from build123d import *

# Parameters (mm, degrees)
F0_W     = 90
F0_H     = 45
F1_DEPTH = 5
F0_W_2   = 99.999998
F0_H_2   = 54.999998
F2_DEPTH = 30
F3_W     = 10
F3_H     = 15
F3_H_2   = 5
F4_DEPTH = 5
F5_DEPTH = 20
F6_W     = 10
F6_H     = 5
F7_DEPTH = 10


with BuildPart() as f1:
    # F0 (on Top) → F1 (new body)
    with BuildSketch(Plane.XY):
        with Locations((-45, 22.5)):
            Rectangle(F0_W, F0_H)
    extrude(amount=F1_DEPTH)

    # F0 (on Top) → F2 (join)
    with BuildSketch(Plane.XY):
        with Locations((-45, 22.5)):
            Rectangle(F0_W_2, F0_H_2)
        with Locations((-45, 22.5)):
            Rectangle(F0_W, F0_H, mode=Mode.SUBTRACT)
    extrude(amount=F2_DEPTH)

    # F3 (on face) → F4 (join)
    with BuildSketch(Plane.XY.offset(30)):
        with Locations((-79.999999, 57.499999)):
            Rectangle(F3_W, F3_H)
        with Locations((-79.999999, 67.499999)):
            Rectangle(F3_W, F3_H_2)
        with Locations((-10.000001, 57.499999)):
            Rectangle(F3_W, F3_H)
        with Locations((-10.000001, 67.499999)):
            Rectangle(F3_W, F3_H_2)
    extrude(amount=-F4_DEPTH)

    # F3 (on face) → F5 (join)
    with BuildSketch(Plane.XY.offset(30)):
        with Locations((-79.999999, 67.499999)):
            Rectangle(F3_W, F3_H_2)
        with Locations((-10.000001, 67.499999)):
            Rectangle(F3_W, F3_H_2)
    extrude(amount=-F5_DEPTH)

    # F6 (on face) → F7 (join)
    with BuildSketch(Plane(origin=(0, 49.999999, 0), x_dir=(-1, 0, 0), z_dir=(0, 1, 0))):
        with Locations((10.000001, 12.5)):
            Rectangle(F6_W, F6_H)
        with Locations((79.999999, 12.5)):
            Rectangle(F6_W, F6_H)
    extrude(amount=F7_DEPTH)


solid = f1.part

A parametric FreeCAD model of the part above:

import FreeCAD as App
import Part
import Sketcher

V = App.Vector
Q = App.Units.Quantity

doc = App.newDocument("Part")
body = doc.addObject("PartDesign::Body", "Body")

# Sketch on XY plane
sketch1 = body.newObject("Sketcher::SketchObject", "Sketch")
sketch1.AttachmentSupport = (doc.getObject("XY_Plane"), [""])
sketch1.MapMode = "FlatFace"
sketch1.addGeometry([
    Part.LineSegment(V(-90, 45, 0), V(-90, 0, 0)),
    Part.LineSegment(V(-90, 0, 0), V(0, 0, 0)),
    Part.LineSegment(V(0, 0, 0), V(0, 45, 0)),
    Part.LineSegment(V(0, 45, 0), V(-90, 45, 0)),
], False)
sketch1.addConstraint([
    Sketcher.Constraint("Coincident", 0, 2, 1, 1),
    Sketcher.Constraint("Coincident", 1, 2, 2, 1),
    Sketcher.Constraint("Coincident", 2, 2, 3, 1),
    Sketcher.Constraint("Coincident", 3, 2, 0, 1),
    Sketcher.Constraint("Vertical", 0),
    Sketcher.Constraint("Horizontal", 1),
    Sketcher.Constraint("Vertical", 2),
    Sketcher.Constraint("Horizontal", 3),
    Sketcher.Constraint("Coincident", 1, 2, -1, 1),
    Sketcher.Constraint("DistanceX", 1, 1, 1, 2, Q("90 mm")),
    Sketcher.Constraint("DistanceY", 0, 2, 0, 1, Q("45 mm")),
])
pad1 = body.newObject("PartDesign::Pad", "Pad")
pad1.Profile = sketch1
pad1.Length = 5

# Sketch on XY plane
sketch2 = body.newObject("Sketcher::SketchObject", "Sketch001")
sketch2.AttachmentSupport = (doc.getObject("XY_Plane"), [""])
sketch2.MapMode = "FlatFace"
sketch2.addGeometry([
    Part.LineSegment(V(-94.999999, 49.999999, 0), V(-94.999999, -4.999999, 0)),  # 0
    Part.LineSegment(V(-94.999999, -4.999999, 0), V(4.999999, -4.999999, 0)),  # 1
    Part.LineSegment(V(4.999999, -4.999999, 0), V(4.999999, 49.999999, 0)),  # 2
    Part.LineSegment(V(4.999999, 49.999999, 0), V(-94.999999, 49.999999, 0)),  # 3
    Part.LineSegment(V(0, 0, 0), V(-90, 0, 0)),  # 4
    Part.LineSegment(V(-90, 0, 0), V(-90, 45, 0)),  # 5
    Part.LineSegment(V(-90, 45, 0), V(0, 45, 0)),  # 6
    Part.LineSegment(V(0, 45, 0), V(0, 0, 0)),  # 7
], False)
sketch2.addConstraint([
    Sketcher.Constraint("Coincident", 0, 2, 1, 1),
    Sketcher.Constraint("Coincident", 1, 2, 2, 1),
    Sketcher.Constraint("Coincident", 2, 2, 3, 1),
    Sketcher.Constraint("Coincident", 3, 2, 0, 1),
    Sketcher.Constraint("Coincident", 4, 2, 5, 1),
    Sketcher.Constraint("Coincident", 5, 2, 6, 1),
    Sketcher.Constraint("Coincident", 6, 2, 7, 1),
    Sketcher.Constraint("Coincident", 7, 2, 4, 1),
    Sketcher.Constraint("Vertical", 0),
    Sketcher.Constraint("Horizontal", 1),
    Sketcher.Constraint("Vertical", 2),
    Sketcher.Constraint("Horizontal", 3),
    Sketcher.Constraint("Horizontal", 4),
    Sketcher.Constraint("Vertical", 5),
    Sketcher.Constraint("Horizontal", 6),
    Sketcher.Constraint("Vertical", 7),
    Sketcher.Constraint("Coincident", 7, 2, -1, 1),
    Sketcher.Constraint("DistanceX", 1, 1, 1, 2, Q("99.999998 mm")),
    Sketcher.Constraint("DistanceX", 4, 2, 4, 1, Q("90 mm")),
    Sketcher.Constraint("DistanceY", 0, 2, 0, 1, Q("54.999998 mm")),
    Sketcher.Constraint("DistanceY", 5, 1, 5, 2, Q("45 mm")),
    Sketcher.Constraint("DistanceX", 0, 2, -1, 1, Q("94.999999 mm")),
    Sketcher.Constraint("DistanceY", 0, 2, -1, 1, Q("4.999999 mm")),
])
pad2 = body.newObject("PartDesign::Pad", "Pad001")
pad2.Profile = sketch2
pad2.Length = 30

# Sketch on XY plane
sketch3 = body.newObject("Sketcher::SketchObject", "Sketch002")
sketch3.AttachmentSupport = (doc.getObject("XY_Plane"), [""])
sketch3.MapMode = "FlatFace"
sketch3.AttachmentOffset = App.Placement(V(0, 0, 30), App.Rotation())
sketch3.addGeometry([
    Part.LineSegment(V(-84.999999, 49.999999, 0), V(-74.999999, 49.999999, 0)),  # 0
    Part.LineSegment(V(-74.999999, 49.999999, 0), V(-74.999999, 69.999999, 0)),  # 1
    Part.LineSegment(V(-74.999999, 69.999999, 0), V(-84.999999, 69.999999, 0)),  # 2
    Part.LineSegment(V(-84.999999, 69.999999, 0), V(-84.999999, 49.999999, 0)),  # 3
    Part.LineSegment(V(-15.000001, 49.999999, 0), V(-5.000001, 49.999999, 0)),  # 4
    Part.LineSegment(V(-5.000001, 49.999999, 0), V(-5.000001, 69.999999, 0)),  # 5
    Part.LineSegment(V(-5.000001, 69.999999, 0), V(-15.000001, 69.999999, 0)),  # 6
    Part.LineSegment(V(-15.000001, 69.999999, 0), V(-15.000001, 49.999999, 0)),  # 7
], False)
sketch3.addConstraint([
    Sketcher.Constraint("Coincident", 0, 2, 1, 1),
    Sketcher.Constraint("Coincident", 1, 2, 2, 1),
    Sketcher.Constraint("Coincident", 2, 2, 3, 1),
    Sketcher.Constraint("Coincident", 3, 2, 0, 1),
    Sketcher.Constraint("Coincident", 4, 2, 5, 1),
    Sketcher.Constraint("Coincident", 5, 2, 6, 1),
    Sketcher.Constraint("Coincident", 6, 2, 7, 1),
    Sketcher.Constraint("Coincident", 7, 2, 4, 1),
    Sketcher.Constraint("Horizontal", 0),
    Sketcher.Constraint("Vertical", 1),
    Sketcher.Constraint("Horizontal", 2),
    Sketcher.Constraint("Vertical", 3),
    Sketcher.Constraint("Horizontal", 4),
    Sketcher.Constraint("Vertical", 5),
    Sketcher.Constraint("Horizontal", 6),
    Sketcher.Constraint("Vertical", 7),
    Sketcher.Constraint("Horizontal", 3, 2, 4, 2),
    Sketcher.Constraint("Horizontal", 2, 2, 5, 2),
    Sketcher.Constraint("Equal", 2, 4),
    Sketcher.Constraint("DistanceX", 0, 1, 0, 2, Q("10 mm")),
    Sketcher.Constraint("DistanceY", 1, 1, 1, 2, Q("20 mm")),
    Sketcher.Constraint("DistanceX", 0, 2, -1, 1, Q("74.999999 mm")),
    Sketcher.Constraint("DistanceY", -1, 1, 0, 2, Q("49.999999 mm")),
    Sketcher.Constraint("DistanceX", 4, 2, -1, 1, Q("5.000001 mm")),
])
pad3 = body.newObject("PartDesign::Pad", "Pad002")
pad3.Profile = sketch3
pad3.Length = 5
pad3.Reversed = True

# Sketch on XY plane
sketch4 = body.newObject("Sketcher::SketchObject", "Sketch003")
sketch4.AttachmentSupport = (doc.getObject("XY_Plane"), [""])
sketch4.MapMode = "FlatFace"
sketch4.AttachmentOffset = App.Placement(V(0, 0, 30), App.Rotation())
sketch4.addGeometry([
    Part.LineSegment(V(-84.999999, 69.999999, 0), V(-84.999999, 64.999999, 0)),  # 0
    Part.LineSegment(V(-84.999999, 64.999999, 0), V(-74.999999, 64.999999, 0)),  # 1
    Part.LineSegment(V(-74.999999, 64.999999, 0), V(-74.999999, 69.999999, 0)),  # 2
    Part.LineSegment(V(-74.999999, 69.999999, 0), V(-84.999999, 69.999999, 0)),  # 3
    Part.LineSegment(V(-15.000001, 69.999999, 0), V(-15.000001, 64.999999, 0)),  # 4
    Part.LineSegment(V(-15.000001, 64.999999, 0), V(-5.000001, 64.999999, 0)),  # 5
    Part.LineSegment(V(-5.000001, 64.999999, 0), V(-5.000001, 69.999999, 0)),  # 6
    Part.LineSegment(V(-5.000001, 69.999999, 0), V(-15.000001, 69.999999, 0)),  # 7
], False)
sketch4.addConstraint([
    Sketcher.Constraint("Coincident", 0, 2, 1, 1),
    Sketcher.Constraint("Coincident", 1, 2, 2, 1),
    Sketcher.Constraint("Coincident", 2, 2, 3, 1),
    Sketcher.Constraint("Coincident", 3, 2, 0, 1),
    Sketcher.Constraint("Coincident", 4, 2, 5, 1),
    Sketcher.Constraint("Coincident", 5, 2, 6, 1),
    Sketcher.Constraint("Coincident", 6, 2, 7, 1),
    Sketcher.Constraint("Coincident", 7, 2, 4, 1),
    Sketcher.Constraint("Vertical", 0),
    Sketcher.Constraint("Horizontal", 1),
    Sketcher.Constraint("Vertical", 2),
    Sketcher.Constraint("Horizontal", 3),
    Sketcher.Constraint("Vertical", 4),
    Sketcher.Constraint("Horizontal", 5),
    Sketcher.Constraint("Vertical", 6),
    Sketcher.Constraint("Horizontal", 7),
    Sketcher.Constraint("Horizontal", 1, 2, 4, 2),
    Sketcher.Constraint("Horizontal", 3, 2, 6, 2),
    Sketcher.Constraint("Equal", 3, 5),
    Sketcher.Constraint("DistanceX", 1, 1, 1, 2, Q("10 mm")),
    Sketcher.Constraint("DistanceY", 0, 2, 0, 1, Q("5 mm")),
    Sketcher.Constraint("DistanceX", 0, 2, -1, 1, Q("84.999999 mm")),
    Sketcher.Constraint("DistanceY", -1, 1, 0, 2, Q("64.999999 mm")),
    Sketcher.Constraint("DistanceX", 4, 2, -1, 1, Q("15.000001 mm")),
])
pad4 = body.newObject("PartDesign::Pad", "Pad003")
pad4.Profile = sketch4
pad4.Length = 20
pad4.Reversed = True

# Sketch on XZ plane
sketch5 = body.newObject("Sketcher::SketchObject", "Sketch004")
sketch5.AttachmentSupport = (doc.getObject("XZ_Plane"), [""])
sketch5.MapMode = "FlatFace"
sketch5.AttachmentOffset = App.Placement(V(0, 0, -49.999999), App.Rotation())
sketch5.addGeometry([
    Part.LineSegment(V(-5.000001, 15, 0), V(-5.000001, 10, 0)),  # 0
    Part.LineSegment(V(-5.000001, 10, 0), V(-15.000001, 10, 0)),  # 1
    Part.LineSegment(V(-15.000001, 10, 0), V(-15.000001, 15, 0)),  # 2
    Part.LineSegment(V(-15.000001, 15, 0), V(-5.000001, 15, 0)),  # 3
    Part.LineSegment(V(-74.999999, 15, 0), V(-74.999999, 10, 0)),  # 4
    Part.LineSegment(V(-74.999999, 10, 0), V(-84.999999, 10, 0)),  # 5
    Part.LineSegment(V(-84.999999, 10, 0), V(-84.999999, 15, 0)),  # 6
    Part.LineSegment(V(-84.999999, 15, 0), V(-74.999999, 15, 0)),  # 7
], False)
sketch5.addConstraint([
    Sketcher.Constraint("Coincident", 0, 2, 1, 1),
    Sketcher.Constraint("Coincident", 1, 2, 2, 1),
    Sketcher.Constraint("Coincident", 2, 2, 3, 1),
    Sketcher.Constraint("Coincident", 3, 2, 0, 1),
    Sketcher.Constraint("Coincident", 4, 2, 5, 1),
    Sketcher.Constraint("Coincident", 5, 2, 6, 1),
    Sketcher.Constraint("Coincident", 6, 2, 7, 1),
    Sketcher.Constraint("Coincident", 7, 2, 4, 1),
    Sketcher.Constraint("Vertical", 0),
    Sketcher.Constraint("Horizontal", 1),
    Sketcher.Constraint("Vertical", 2),
    Sketcher.Constraint("Horizontal", 3),
    Sketcher.Constraint("Vertical", 4),
    Sketcher.Constraint("Horizontal", 5),
    Sketcher.Constraint("Vertical", 6),
    Sketcher.Constraint("Horizontal", 7),
    Sketcher.Constraint("Horizontal", 1, 2, 4, 2),
    Sketcher.Constraint("Horizontal", 3, 2, 6, 2),
    Sketcher.Constraint("Equal", 3, 5),
    Sketcher.Constraint("DistanceX", 1, 2, 1, 1, Q("10 mm")),
    Sketcher.Constraint("DistanceY", 0, 2, 0, 1, Q("5 mm")),
    Sketcher.Constraint("DistanceX", 0, 2, -1, 1, Q("5.000001 mm")),
    Sketcher.Constraint("DistanceY", -1, 1, 0, 2, Q("10 mm")),
    Sketcher.Constraint("DistanceX", 4, 2, -1, 1, Q("74.999999 mm")),
])
pad5 = body.newObject("PartDesign::Pad", "Pad004")
pad5.Profile = sketch5
pad5.Length = 10
pad5.Reversed = True

doc.recompute()
